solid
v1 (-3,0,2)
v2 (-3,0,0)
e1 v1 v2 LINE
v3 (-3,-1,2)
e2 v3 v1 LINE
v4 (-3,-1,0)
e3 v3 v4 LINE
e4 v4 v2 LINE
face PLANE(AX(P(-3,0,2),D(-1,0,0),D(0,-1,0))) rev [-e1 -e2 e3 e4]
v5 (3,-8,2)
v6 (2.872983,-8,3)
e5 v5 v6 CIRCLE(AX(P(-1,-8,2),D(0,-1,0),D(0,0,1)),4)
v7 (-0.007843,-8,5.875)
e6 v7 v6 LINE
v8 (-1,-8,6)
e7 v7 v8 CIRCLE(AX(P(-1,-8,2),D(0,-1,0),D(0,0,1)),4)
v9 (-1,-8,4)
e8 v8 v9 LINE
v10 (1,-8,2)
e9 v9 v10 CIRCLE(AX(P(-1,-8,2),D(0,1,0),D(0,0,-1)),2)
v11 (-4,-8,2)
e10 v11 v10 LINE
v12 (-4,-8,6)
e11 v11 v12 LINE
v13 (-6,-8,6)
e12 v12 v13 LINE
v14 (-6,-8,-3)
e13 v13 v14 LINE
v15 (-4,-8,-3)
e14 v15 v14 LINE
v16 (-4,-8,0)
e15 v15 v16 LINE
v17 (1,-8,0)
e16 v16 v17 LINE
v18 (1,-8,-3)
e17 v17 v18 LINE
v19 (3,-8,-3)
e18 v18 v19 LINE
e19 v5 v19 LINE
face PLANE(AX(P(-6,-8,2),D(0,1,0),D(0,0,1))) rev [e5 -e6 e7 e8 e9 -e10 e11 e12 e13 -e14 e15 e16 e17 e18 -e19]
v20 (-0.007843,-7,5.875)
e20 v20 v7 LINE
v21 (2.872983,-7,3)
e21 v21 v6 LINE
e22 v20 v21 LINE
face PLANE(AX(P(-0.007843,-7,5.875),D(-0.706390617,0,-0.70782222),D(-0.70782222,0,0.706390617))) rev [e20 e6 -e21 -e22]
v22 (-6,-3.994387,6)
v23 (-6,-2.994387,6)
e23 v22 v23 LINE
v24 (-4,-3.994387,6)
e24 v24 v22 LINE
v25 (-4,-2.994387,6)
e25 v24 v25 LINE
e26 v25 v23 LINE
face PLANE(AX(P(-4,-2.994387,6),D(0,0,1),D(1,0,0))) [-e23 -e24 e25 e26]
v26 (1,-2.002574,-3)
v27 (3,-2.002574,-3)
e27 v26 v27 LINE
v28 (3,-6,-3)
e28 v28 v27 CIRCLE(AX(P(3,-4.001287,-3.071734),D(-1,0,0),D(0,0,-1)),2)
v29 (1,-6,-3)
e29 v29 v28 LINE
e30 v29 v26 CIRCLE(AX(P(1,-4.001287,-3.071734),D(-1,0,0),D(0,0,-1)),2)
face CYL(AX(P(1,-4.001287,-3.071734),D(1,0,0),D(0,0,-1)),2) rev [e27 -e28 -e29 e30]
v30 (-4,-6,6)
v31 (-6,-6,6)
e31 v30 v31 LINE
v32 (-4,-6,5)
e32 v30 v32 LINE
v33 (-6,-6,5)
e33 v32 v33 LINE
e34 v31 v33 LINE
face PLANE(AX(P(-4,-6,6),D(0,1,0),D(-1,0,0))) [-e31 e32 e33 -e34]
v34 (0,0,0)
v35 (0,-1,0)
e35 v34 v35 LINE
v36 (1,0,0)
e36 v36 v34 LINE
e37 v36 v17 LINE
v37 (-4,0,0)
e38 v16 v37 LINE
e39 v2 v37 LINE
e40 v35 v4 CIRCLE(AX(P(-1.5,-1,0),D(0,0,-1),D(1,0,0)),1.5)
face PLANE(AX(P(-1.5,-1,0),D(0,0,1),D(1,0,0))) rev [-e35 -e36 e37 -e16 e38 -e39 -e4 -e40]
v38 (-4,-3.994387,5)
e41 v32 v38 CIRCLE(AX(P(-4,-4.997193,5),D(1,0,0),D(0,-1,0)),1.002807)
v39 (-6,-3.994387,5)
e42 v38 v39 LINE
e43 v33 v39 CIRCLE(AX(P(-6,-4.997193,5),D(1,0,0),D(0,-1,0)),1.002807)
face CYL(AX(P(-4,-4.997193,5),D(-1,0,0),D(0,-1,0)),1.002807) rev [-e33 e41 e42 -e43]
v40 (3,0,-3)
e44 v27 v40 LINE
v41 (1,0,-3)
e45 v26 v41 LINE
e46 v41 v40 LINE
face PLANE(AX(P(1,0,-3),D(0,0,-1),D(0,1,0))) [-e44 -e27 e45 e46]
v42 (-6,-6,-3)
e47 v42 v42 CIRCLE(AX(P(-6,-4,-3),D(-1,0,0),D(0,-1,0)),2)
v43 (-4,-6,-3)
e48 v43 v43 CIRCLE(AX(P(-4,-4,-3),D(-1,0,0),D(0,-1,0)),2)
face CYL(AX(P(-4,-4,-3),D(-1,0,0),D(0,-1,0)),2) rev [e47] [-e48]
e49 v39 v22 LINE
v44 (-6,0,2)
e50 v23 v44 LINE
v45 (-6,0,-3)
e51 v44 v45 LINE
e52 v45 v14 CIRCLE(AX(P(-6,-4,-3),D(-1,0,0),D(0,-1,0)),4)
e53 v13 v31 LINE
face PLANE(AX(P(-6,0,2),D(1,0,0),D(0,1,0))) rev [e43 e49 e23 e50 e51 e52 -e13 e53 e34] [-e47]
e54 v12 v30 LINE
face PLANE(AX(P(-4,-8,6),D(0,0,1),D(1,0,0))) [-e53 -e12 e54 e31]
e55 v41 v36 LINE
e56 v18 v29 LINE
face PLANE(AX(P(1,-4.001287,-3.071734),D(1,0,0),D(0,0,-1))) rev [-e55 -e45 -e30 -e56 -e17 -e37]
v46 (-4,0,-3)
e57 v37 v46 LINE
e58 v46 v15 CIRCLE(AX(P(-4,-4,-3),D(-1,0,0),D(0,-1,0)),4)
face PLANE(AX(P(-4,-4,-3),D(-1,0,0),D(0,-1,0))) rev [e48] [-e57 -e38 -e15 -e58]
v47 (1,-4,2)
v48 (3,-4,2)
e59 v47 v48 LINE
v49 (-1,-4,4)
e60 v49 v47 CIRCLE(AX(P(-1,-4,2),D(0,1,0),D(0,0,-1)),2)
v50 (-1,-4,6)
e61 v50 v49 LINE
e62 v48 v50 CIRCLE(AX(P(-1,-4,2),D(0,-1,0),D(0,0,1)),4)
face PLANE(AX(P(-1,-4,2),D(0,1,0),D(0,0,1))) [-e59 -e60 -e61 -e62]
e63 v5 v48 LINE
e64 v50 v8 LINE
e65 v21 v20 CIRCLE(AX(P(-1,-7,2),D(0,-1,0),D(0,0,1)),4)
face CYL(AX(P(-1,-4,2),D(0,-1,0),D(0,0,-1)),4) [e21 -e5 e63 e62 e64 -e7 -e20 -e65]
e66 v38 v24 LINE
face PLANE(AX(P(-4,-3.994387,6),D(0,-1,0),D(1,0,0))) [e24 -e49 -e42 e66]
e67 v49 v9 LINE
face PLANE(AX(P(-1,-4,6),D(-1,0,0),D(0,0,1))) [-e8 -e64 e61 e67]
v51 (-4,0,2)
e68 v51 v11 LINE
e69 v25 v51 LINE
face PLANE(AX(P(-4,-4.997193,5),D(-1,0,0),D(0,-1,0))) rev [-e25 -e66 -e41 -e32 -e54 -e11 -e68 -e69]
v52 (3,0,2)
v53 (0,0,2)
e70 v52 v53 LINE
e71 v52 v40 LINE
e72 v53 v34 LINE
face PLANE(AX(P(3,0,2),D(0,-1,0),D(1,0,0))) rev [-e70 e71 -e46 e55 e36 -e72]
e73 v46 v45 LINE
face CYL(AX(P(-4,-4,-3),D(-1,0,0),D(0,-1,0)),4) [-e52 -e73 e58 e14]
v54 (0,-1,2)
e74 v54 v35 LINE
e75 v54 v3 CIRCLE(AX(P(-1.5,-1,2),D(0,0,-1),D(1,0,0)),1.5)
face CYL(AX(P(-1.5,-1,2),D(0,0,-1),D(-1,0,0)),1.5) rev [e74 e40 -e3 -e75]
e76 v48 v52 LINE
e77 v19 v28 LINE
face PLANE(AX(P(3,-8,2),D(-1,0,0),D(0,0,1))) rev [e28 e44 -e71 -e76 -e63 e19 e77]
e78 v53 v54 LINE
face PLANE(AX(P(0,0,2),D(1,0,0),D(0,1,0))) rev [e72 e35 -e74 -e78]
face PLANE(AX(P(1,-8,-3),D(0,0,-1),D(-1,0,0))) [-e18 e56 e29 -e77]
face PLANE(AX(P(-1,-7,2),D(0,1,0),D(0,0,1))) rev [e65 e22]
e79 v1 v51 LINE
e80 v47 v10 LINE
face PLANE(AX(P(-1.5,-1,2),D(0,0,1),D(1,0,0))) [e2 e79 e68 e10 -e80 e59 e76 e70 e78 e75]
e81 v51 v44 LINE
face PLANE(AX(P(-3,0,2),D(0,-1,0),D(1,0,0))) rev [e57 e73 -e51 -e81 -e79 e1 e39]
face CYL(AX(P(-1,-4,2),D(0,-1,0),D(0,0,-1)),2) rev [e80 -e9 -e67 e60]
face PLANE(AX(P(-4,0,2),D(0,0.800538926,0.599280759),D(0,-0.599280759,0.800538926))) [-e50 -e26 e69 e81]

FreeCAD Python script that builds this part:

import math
import FreeCAD as App
import Part
import Sketcher

V = App.Vector
Q = App.Units.Quantity

doc = App.newDocument("Part")
params = doc.addObject("Spreadsheet::Sheet", "Params")
for row, (alias, value) in enumerate([
    ("sketch1_radius", "1.5 mm"),
    ("sketch1_height", "8 mm"),
    ("sketch1_height2", "1 mm"),
    ("pad1_length", "2 mm"),
    ("sketch2_radius", "2 mm"),
    ("sketch2_width", "8 mm"),
    ("sketch2_width2", "2 mm"),
    ("sketch2_height", "3 mm"),
    ("pad2_length", "2 mm"),
    ("sketch3_diameter", "4 mm"),
    ("sketch3_radius", "4 mm"),
    ("sketch3_height", "3 mm"),
    ("pad3_length", "2 mm"),
    ("sketch4_width", "2 mm"),
    ("sketch4_width2", "1 mm"),
    ("sketch4_width3", "8 mm"),
    ("sketch4_height", "4 mm"),
    ("pad4_length", "2 mm"),
    ("sketch5_radius", "4 mm"),
    ("sketch5_radius2", "2 mm"),
    ("pad5_length", "4 mm"),
    ("sketch6_radius", "4 mm"),
    ("pocket1_length", "1 mm"),
], start=1):
    params.set(f"A{row}", alias)
    params.set(f"B{row}", "=" + value)
    params.setAlias(f"B{row}", alias)

body = doc.addObject("PartDesign::Body", "Body")

sketch1 = doc.addObject("Sketcher::SketchObject", "Sketch")
body.addObject(sketch1)
sketch1.AttachmentSupport = (doc.XY_Plane, [""])
sketch1.MapMode = "FlatFace"
sketch1.addGeometry([
    Part.LineSegment(V(-3, 0, 0), V(-6, 0, 0)),
    Part.LineSegment(V(-6, 0, 0), V(-6, -8, 0)),
    Part.LineSegment(V(-6, -8, 0), V(3, -8, 0)),
    Part.LineSegment(V(3, -8, 0), V(3, 0, 0)),
    Part.LineSegment(V(3, 0, 0), V(0, 0, 0)),
    Part.LineSegment(V(0, 0, 0), V(0, -1, 0)),
    Part.ArcOfCircle(Part.Circle(V(-1.5, -1, 0), V(0, 0, 1), 1.5), math.radians(180), math.radians(360)),
    Part.LineSegment(V(-3, -1, 0), V(-3, 0, 0)),
], False)
sketch1.addConstraint([
    Sketcher.Constraint("Coincident", 0, 2, 1, 1),
    Sketcher.Constraint("Coincident", 1, 2, 2, 1),
    Sketcher.Constraint("Coincident", 2, 2, 3, 1),
    Sketcher.Constraint("Coincident", 3, 2, 4, 1),
    Sketcher.Constraint("Coincident", 4, 2, 5, 1),
    Sketcher.Constraint("Tangent", 5, 2, 6, 2),
    Sketcher.Constraint("Tangent", 6, 1, 7, 1),
    Sketcher.Constraint("Coincident", 7, 2, 0, 1),
    Sketcher.Constraint("Horizontal", 0),
    Sketcher.Constraint("Vertical", 1),
    Sketcher.Constraint("Horizontal", 2),
    Sketcher.Constraint("Vertical", 3),
    Sketcher.Constraint("Horizontal", 4),
    Sketcher.Constraint("Vertical", 5),
    Sketcher.Constraint("Vertical", 7),
    Sketcher.Constraint("Coincident", 4, 2, -1, 1),
    Sketcher.Constraint("Symmetric", 3, 2, 7, 2, -1, 1),
    Sketcher.Constraint("Equal", 0, 4),
    Sketcher.Constraint("Radius", 6, Q("1.5 mm")),
    Sketcher.Constraint("DistanceY", 1, 2, 1, 1, Q("8 mm")),
    Sketcher.Constraint("DistanceY", 5, 2, 5, 1, Q("1 mm")),
])
sketch1.setExpression("Constraints[18]", "Params.sketch1_radius")
sketch1.setExpression("Constraints[19]", "Params.sketch1_height")
sketch1.setExpression("Constraints[20]", "Params.sketch1_height2")
pad1 = doc.addObject("PartDesign::Pad", "Pad")
body.addObject(pad1)
pad1.Profile = sketch1
pad1.setExpression("Length", "Params.pad1_length")

sketch2 = doc.addObject("Sketcher::SketchObject", "Sketch001")
body.addObject(sketch2)
sketch2.AttachmentSupport = (doc.YZ_Plane, [""])
sketch2.MapMode = "FlatFace"
sketch2.AttachmentOffset = App.Placement(V(0, 0, 3), App.Rotation())
sketch2.addGeometry([
    Part.LineSegment(V(0, -3, 0), V(0, 0, 0)),
    Part.LineSegment(V(0, 0, 0), V(-8, 0, 0)),
    Part.LineSegment(V(-8, 0, 0), V(-8, -3, 0)),
    Part.LineSegment(V(-8, -3, 0), V(-6, -3, 0)),
    Part.ArcOfCircle(Part.Circle(V(-4, -3.1, 0), V(0, 0, 1), 2), math.radians(2), math.radians(178)),
    Part.LineSegment(V(-2, -3, 0), V(0, -3, 0)),
], False)
sketch2.addConstraint([
    Sketcher.Constraint("Coincident", 0, 2, 1, 1),
    Sketcher.Constraint("Coincident", 1, 2, 2, 1),
    Sketcher.Constraint("Coincident", 2, 2, 3, 1),
    Sketcher.Constraint("Coincident", 3, 2, 4, 2),
    Sketcher.Constraint("Coincident", 4, 1, 5, 1),
    Sketcher.Constraint("Coincident", 5, 2, 0, 1),
    Sketcher.Constraint("Vertical", 0),
    Sketcher.Constraint("Horizontal", 1),
    Sketcher.Constraint("Vertical", 2),
    Sketcher.Constraint("Horizontal", 3),
    Sketcher.Constraint("Horizontal", 5),
    Sketcher.Constraint("Coincident", 0, 2, -1, 1),
    Sketcher.Constraint("Horizontal", 3, 2, 4, 1),
    Sketcher.Constraint("Radius", 4, Q("2 mm")),
    Sketcher.Constraint("DistanceX", 1, 2, 1, 1, Q("8 mm")),
    Sketcher.Constraint("DistanceX", 3, 1, 3, 2, Q("2 mm")),
    Sketcher.Constraint("DistanceY", 0, 1, 0, 2, Q("3 mm")),
    Sketcher.Constraint("DistanceX", 5, 1, 5, 2, Q("2.002574 mm")),
])
sketch2.setExpression("Constraints[13]", "Params.sketch2_radius")
sketch2.setExpression("Constraints[14]", "Params.sketch2_width")
sketch2.setExpression("Constraints[15]", "Params.sketch2_width2")
sketch2.setExpression("Constraints[16]", "Params.sketch2_height")
pad2 = doc.addObject("PartDesign::Pad", "Pad001")
body.addObject(pad2)
pad2.Profile = sketch2
pad2.setExpression("Length", "Params.pad2_length")
pad2.Reversed = True

sketch3 = doc.addObject("Sketcher::SketchObject", "Sketch002")
body.addObject(sketch3)
sketch3.AttachmentSupport = (doc.YZ_Plane, [""])
sketch3.MapMode = "FlatFace"
sketch3.AttachmentOffset = App.Placement(V(0, 0, -6), App.Rotation())
sketch3.addGeometry([
    Part.LineSegment(V(0, 0, 0), V(0, -3, 0)),
    Part.ArcOfCircle(Part.Circle(V(-4, -3, 0), V(0, 0, 1), 4), math.radians(180), math.radians(360)),
    Part.LineSegment(V(-8, -3, 0), V(-8, 0, 0)),
    Part.LineSegment(V(-8, 0, 0), V(0, 0, 0)),
    Part.Circle(V(-4, -3, 0), V(0, 0, 1), 2),
], False)
sketch3.addConstraint([
    Sketcher.Constraint("Tangent", 0, 2, 1, 2),
    Sketcher.Constraint("Tangent", 1, 1, 2, 1),
    Sketcher.Constraint("Coincident", 2, 2, 3, 1),
    Sketcher.Constraint("Coincident", 3, 2, 0, 1),
    Sketcher.Constraint("Vertical", 0),
    Sketcher.Constraint("Vertical", 2),
    Sketcher.Constraint("Horizontal", 3),
    Sketcher.Constraint("Coincident", 3, 2, -1, 1),
    Sketcher.Constraint("Coincident", 4, 3, 1, 3),
    Sketcher.Constraint("Diameter", 4, Q("4 mm")),
    Sketcher.Constraint("Radius", 1, Q("4 mm")),
    Sketcher.Constraint("DistanceY", 0, 2, 0, 1, Q("3 mm")),
])
sketch3.setExpression("Constraints[9]", "Params.sketch3_diameter")
sketch3.setExpression("Constraints[10]", "Params.sketch3_radius")
sketch3.setExpression("Constraints[11]", "Params.sketch3_height")
pad3 = doc.addObject("PartDesign::Pad", "Pad002")
body.addObject(pad3)
pad3.Profile = sketch3
pad3.setExpression("Length", "Params.pad3_length")

sketch4 = doc.addObject("Sketcher::SketchObject", "Sketch003")
body.addObject(sketch4)
sketch4.AttachmentSupport = (doc.YZ_Plane, [""])
sketch4.MapMode = "FlatFace"
sketch4.AttachmentOffset = App.Placement(V(0, 0, -6), App.Rotation())
sketch4.addGeometry([
    Part.LineSegment(V(-8, 2, 0), V(-8, 6, 0)),
    Part.LineSegment(V(-8, 6, 0), V(-6, 6, 0)),
    Part.LineSegment(V(-6, 6, 0), V(-6, 5, 0)),
    Part.ArcOfCircle(Part.Circle(V(-5, 5, 0), V(0, 0, 1), 1), math.radians(180), math.radians(360)),
    Part.LineSegment(V(-4, 5, 0), V(-4, 6, 0)),
    Part.LineSegment(V(-4, 6, 0), V(-3, 6, 0)),
    Part.LineSegment(V(-3, 6, 0), V(0, 2, 0)),
    Part.LineSegment(V(0, 2, 0), V(-8, 2, 0)),
], False)
sketch4.addConstraint([
    Sketcher.Constraint("Coincident", 0, 2, 1, 1),
    Sketcher.Constraint("Coincident", 1, 2, 2, 1),
    Sketcher.Constraint("Tangent", 2, 2, 3, 1),
    Sketcher.Constraint("Tangent", 3, 2, 4, 1),
    Sketcher.Constraint("Coincident", 4, 2, 5, 1),
    Sketcher.Constraint("Coincident", 5, 2, 6, 1),
    Sketcher.Constraint("Coincident", 6, 2, 7, 1),
    Sketcher.Constraint("Coincident", 7, 2, 0, 1),
    Sketcher.Constraint("Vertical", 0),
    Sketcher.Constraint("Horizontal", 1),
    Sketcher.Constraint("Vertical", 2),
    Sketcher.Constraint("Vertical", 4),
    Sketcher.Constraint("Horizontal", 5),
    Sketcher.Constraint("Horizontal", 7),
    Sketcher.Constraint("PointOnObject", 6, 2, -2),
    Sketcher.Constraint("Horizontal", 1, 2, 4, 2),
    Sketcher.Constraint("Equal", 5, 2),
    Sketcher.Constraint("DistanceX", 1, 1, 1, 2, Q("2 mm")),
    Sketcher.Constraint("DistanceX", 5, 1, 5, 2, Q("1 mm")),
    Sketcher.Constraint("DistanceX", 7, 2, 7, 1, Q("8 mm")),
    Sketcher.Constraint("DistanceY", 0, 1, 0, 2, Q("4 mm")),
    Sketcher.Constraint("DistanceY", -1, 1, 3, 3, Q("5 mm")),
    Sketcher.Constraint("Radius", 3, Q("1.002807 mm")),
])
sketch4.setExpression("Constraints[17]", "Params.sketch4_width")
sketch4.setExpression("Constraints[18]", "Params.sketch4_width2")
sketch4.setExpression("Constraints[19]", "Params.sketch4_width3")
sketch4.setExpression("Constraints[20]", "Params.sketch4_height")
pad4 = doc.addObject("PartDesign::Pad", "Pad003")
body.addObject(pad4)
pad4.Profile = sketch4
pad4.setExpression("Length", "Params.pad4_length")

sketch5 = doc.addObject("Sketcher::SketchObject", "Sketch004")
body.addObject(sketch5)
sketch5.AttachmentSupport = (doc.XZ_Plane, [""])
sketch5.MapMode = "FlatFace"
sketch5.AttachmentOffset = App.Placement(V(0, 0, 8), App.Rotation())
sketch5.addGeometry([
    Part.LineSegment(V(1, 2, 0), V(3, 2, 0)),
    Part.ArcOfCircle(Part.Circle(V(-1, 2, 0), V(0, 0, 1), 4), math.radians(0), math.radians(90)),
    Part.LineSegment(V(-1, 6, 0), V(-1, 4, 0)),
    Part.ArcOfCircle(Part.Circle(V(-1, 2, 0), V(0, 0, 1), 2), math.radians(0), math.radians(90)),
], False)
sketch5.addConstraint([
    Sketcher.Constraint("Coincident", 0, 2, 1, 1),
    Sketcher.Constraint("Coincident", 1, 2, 2, 1),
    Sketcher.Constraint("Coincident", 2, 2, 3, 2),
    Sketcher.Constraint("Coincident", 3, 1, 0, 1),
    Sketcher.Constraint("Horizontal", 0),
    Sketcher.Constraint("Vertical", 2),
    Sketcher.Constraint("Coincident", 3, 3, 1, 3),
    Sketcher.Constraint("Horizontal", 3, 3, 0, 2),
    Sketcher.Constraint("Vertical", 3, 3, 1, 2),
    Sketcher.Constraint("Radius", 1, Q("4 mm")),
    Sketcher.Constraint("Radius", 3, Q("2 mm")),
    Sketcher.Constraint("DistanceX", 1, 3, -1, 1, Q("1 mm")),
    Sketcher.Constraint("DistanceY", -1, 1, 1, 3, Q("2 mm")),
])
sketch5.setExpression("Constraints[9]", "Params.sketch5_radius")
sketch5.setExpression("Constraints[10]", "Params.sketch5_radius2")
pad5 = doc.addObject("PartDesign::Pad", "Pad004")
body.addObject(pad5)
pad5.Profile = sketch5
pad5.setExpression("Length", "Params.pad5_length")
pad5.Reversed = True

sketch6 = doc.addObject("Sketcher::SketchObject", "Sketch005")
body.addObject(sketch6)
sketch6.AttachmentSupport = (doc.XZ_Plane, [""])
sketch6.MapMode = "FlatFace"
sketch6.AttachmentOffset = App.Placement(V(0, 0, 8), App.Rotation())
sketch6.addGeometry([
    Part.LineSegment(V(0, 5.9, 0), V(2.9, 3, 0)),
    Part.ArcOfCircle(Part.Circle(V(-1, 2, 0), V(0, 0, 1), 4), math.radians(14), math.radians(76)),
], False)
sketch6.addConstraint([
    Sketcher.Constraint("Coincident", 0, 1, 1, 2),
    Sketcher.Constraint("Coincident", 1, 1, 0, 2),
    Sketcher.Constraint("Radius", 1, Q("4 mm")),
    Sketcher.Constraint("DistanceX", 1, 3, -1, 1, Q("1 mm")),
    Sketcher.Constraint("DistanceY", -1, 1, 1, 3, Q("2 mm")),
    Sketcher.Constraint("DistanceY", -1, 1, 1, 1, Q("3 mm")),
    Sketcher.Constraint("DistanceY", -1, 1, 0, 1, Q("5.875 mm")),
])
sketch6.setExpression("Constraints[2]", "Params.sketch6_radius")
pocket1 = doc.addObject("PartDesign::Pocket", "Pocket")
body.addObject(pocket1)
pocket1.Profile = sketch6
pocket1.setExpression("Length", "Params.pocket1_length")

doc.recompute()
